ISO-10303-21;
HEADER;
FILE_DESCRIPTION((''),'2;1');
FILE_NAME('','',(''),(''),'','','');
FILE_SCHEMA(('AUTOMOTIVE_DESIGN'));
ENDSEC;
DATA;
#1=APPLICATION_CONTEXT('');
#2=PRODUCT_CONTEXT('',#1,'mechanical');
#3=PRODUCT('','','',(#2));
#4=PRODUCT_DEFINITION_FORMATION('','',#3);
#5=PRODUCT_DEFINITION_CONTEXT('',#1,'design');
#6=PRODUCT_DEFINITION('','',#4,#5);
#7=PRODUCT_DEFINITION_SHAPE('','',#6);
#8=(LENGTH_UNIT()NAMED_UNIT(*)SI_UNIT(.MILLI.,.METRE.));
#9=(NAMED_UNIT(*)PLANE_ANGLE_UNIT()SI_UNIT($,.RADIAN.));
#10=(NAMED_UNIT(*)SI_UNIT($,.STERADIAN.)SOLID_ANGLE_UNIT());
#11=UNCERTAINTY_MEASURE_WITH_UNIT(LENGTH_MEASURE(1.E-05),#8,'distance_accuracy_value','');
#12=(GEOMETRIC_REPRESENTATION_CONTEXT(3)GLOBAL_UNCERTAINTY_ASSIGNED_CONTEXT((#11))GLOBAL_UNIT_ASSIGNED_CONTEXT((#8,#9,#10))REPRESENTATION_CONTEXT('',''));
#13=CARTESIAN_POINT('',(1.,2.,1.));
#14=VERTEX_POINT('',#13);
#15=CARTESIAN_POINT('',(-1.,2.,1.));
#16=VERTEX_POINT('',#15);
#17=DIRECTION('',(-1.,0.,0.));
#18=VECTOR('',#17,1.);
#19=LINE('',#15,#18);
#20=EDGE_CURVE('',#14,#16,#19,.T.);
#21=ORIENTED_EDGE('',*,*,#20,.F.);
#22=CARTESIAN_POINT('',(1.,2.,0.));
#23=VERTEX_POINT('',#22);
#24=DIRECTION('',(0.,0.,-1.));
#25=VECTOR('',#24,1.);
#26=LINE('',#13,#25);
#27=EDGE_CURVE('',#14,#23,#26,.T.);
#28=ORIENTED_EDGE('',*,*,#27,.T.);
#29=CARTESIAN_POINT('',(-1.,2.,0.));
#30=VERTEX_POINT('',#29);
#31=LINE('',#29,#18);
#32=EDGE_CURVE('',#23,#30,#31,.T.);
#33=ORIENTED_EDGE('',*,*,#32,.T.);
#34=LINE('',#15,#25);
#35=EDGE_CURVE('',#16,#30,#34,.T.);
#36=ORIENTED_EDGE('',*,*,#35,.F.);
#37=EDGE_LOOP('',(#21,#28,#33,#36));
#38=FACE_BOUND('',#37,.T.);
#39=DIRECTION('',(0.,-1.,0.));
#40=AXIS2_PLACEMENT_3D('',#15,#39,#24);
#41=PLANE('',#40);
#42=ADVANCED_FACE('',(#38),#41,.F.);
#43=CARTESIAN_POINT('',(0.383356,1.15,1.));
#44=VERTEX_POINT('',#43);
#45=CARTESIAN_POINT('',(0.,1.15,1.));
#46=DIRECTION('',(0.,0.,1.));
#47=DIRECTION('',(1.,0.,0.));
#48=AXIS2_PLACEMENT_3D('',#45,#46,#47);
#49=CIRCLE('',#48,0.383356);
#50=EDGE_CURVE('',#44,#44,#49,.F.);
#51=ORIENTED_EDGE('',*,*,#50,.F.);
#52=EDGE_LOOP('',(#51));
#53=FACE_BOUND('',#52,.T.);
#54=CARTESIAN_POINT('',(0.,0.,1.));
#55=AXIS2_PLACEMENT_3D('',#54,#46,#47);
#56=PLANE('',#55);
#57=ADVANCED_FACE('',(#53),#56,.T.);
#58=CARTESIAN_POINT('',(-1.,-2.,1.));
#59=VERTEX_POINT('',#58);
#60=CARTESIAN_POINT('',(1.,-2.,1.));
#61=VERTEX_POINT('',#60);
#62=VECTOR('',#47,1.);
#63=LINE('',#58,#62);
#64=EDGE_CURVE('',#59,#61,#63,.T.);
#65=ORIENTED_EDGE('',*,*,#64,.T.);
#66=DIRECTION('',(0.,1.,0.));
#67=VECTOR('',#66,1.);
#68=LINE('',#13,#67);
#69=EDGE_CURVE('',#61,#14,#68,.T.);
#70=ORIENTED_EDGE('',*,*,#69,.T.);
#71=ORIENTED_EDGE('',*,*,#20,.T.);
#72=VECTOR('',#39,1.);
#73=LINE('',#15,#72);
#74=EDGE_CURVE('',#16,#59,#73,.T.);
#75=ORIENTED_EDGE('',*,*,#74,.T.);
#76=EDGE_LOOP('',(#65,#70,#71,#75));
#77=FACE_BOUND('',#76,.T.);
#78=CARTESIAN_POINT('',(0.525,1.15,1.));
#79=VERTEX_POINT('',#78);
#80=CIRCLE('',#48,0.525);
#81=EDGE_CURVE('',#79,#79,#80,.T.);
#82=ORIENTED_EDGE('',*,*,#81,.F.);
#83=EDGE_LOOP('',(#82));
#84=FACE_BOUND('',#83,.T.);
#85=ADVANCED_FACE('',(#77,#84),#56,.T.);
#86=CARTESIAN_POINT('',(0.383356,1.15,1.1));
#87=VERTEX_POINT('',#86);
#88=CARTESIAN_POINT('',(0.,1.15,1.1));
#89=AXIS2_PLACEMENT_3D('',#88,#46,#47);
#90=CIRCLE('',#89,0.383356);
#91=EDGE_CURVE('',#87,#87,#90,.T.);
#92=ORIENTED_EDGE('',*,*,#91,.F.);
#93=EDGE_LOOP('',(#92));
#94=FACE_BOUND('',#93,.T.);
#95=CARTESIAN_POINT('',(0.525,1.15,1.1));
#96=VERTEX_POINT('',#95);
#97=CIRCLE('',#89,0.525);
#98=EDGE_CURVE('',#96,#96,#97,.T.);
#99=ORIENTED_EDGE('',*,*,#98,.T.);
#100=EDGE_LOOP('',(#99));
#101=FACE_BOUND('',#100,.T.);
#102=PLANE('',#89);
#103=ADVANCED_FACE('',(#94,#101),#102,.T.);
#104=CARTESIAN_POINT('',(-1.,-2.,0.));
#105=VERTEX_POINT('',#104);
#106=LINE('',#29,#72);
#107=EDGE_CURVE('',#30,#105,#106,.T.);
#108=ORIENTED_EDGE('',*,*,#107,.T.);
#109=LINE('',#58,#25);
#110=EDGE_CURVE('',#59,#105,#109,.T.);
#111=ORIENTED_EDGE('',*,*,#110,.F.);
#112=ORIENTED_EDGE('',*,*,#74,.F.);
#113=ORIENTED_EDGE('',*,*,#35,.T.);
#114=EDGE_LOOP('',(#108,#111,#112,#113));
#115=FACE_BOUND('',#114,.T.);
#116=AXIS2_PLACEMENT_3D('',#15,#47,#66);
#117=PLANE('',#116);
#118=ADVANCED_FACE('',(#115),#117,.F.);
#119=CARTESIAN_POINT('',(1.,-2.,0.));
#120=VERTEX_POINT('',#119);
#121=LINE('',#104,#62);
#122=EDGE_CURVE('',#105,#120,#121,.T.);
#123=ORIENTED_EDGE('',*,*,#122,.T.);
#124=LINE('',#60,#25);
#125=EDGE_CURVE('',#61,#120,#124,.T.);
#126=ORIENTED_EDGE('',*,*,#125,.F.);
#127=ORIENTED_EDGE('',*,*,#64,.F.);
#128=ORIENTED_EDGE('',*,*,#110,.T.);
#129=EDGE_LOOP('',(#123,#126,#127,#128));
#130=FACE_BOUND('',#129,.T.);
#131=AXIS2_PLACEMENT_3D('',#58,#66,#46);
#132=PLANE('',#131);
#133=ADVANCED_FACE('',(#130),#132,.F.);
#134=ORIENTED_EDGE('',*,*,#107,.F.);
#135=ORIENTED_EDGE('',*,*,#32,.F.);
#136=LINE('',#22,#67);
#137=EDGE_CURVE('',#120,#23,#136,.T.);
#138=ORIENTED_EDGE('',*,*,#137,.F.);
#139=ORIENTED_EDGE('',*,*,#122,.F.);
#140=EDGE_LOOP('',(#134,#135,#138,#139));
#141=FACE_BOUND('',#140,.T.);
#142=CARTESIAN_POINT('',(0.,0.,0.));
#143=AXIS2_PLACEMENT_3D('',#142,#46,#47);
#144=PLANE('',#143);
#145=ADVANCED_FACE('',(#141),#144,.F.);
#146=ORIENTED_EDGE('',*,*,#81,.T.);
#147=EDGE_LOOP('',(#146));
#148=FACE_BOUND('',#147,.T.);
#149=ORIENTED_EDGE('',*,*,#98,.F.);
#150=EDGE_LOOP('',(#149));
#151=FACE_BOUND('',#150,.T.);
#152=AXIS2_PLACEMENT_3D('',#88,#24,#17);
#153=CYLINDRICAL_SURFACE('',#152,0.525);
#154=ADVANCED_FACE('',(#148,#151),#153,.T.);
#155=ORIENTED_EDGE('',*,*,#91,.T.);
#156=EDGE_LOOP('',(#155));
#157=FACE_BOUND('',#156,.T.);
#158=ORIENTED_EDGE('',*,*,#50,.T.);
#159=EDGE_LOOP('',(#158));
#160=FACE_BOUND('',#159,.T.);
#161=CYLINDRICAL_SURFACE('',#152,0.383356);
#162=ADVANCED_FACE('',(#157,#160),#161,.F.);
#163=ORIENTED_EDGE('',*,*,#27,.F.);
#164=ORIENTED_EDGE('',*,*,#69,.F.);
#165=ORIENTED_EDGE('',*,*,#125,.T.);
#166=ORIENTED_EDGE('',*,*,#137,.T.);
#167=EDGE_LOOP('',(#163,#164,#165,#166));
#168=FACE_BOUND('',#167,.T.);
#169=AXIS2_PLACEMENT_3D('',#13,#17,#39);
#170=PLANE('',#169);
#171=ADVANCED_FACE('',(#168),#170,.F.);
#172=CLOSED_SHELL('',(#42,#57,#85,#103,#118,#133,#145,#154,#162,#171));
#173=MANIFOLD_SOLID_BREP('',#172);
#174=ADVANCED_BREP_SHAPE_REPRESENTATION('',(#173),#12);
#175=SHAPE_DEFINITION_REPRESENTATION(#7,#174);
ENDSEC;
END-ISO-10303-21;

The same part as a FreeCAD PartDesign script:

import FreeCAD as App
import Part
import Sketcher

V = App.Vector
Q = App.Units.Quantity


def add_polygon(sketch, points):
    """Adds a closed chain of lines whose ends are joined by coincident constraints."""
    first, n = sketch.GeometryCount, len(points)
    for a, b in zip(points, points[1:] + points[:1]):
        sketch.addGeometry(Part.LineSegment(App.Vector(*a, 0), App.Vector(*b, 0)), False)
    for i in range(n):
        sketch.addConstraint(Sketcher.Constraint("Coincident", first + i, 2, first + (i + 1) % n, 1))

doc = App.newDocument("Part")
body = doc.addObject("PartDesign::Body", "Body")

sketch1 = body.newObject("Sketcher::SketchObject", "Sketch")
sketch1.AttachmentSupport = (doc.getObject("XY_Plane"), [""])
sketch1.MapMode = "FlatFace"
add_polygon(sketch1, [(-1, 2), (-1, -2), (1, -2), (1, 2)])
sketch1.addConstraint([
    Sketcher.Constraint("Vertical", 0),
    Sketcher.Constraint("Horizontal", 1),
    Sketcher.Constraint("Vertical", 2),
    Sketcher.Constraint("Horizontal", 3),
    Sketcher.Constraint("Symmetric", 0, 2, 2, 2, -1, 1),
    Sketcher.Constraint("DistanceX", 1, 1, 1, 2, Q("2 mm")),
    Sketcher.Constraint("DistanceY", 0, 2, 0, 1, Q("4 mm")),
])
pad1 = body.newObject("PartDesign::Pad", "Pad")
pad1.Profile = sketch1
pad1.Length = 1

sketch2 = body.newObject("Sketcher::SketchObject", "Sketch001")
sketch2.AttachmentSupport = (doc.getObject("XY_Plane"), [""])
sketch2.MapMode = "FlatFace"
sketch2.AttachmentOffset = App.Placement(V(0, 0, 1), App.Rotation())
sketch2.addGeometry([
    Part.Circle(V(0, 1.15, 0), V(0, 0, 1), 0.53),
    Part.Circle(V(0, 1.15, 0), V(0, 0, 1), 0.38),
], False)
sketch2.addConstraint([
    Sketcher.Constraint("Coincident", 1, 3, 0, 3),
    Sketcher.Constraint("PointOnObject", 0, 3, -2),
    Sketcher.Constraint("Diameter", 0, Q("1.05 mm")),
    Sketcher.Constraint("Diameter", 1, Q("0.766712 mm")),
    Sketcher.Constraint("DistanceY", -1, 1, 0, 3, Q("1.15 mm")),
])
pad2 = body.newObject("PartDesign::Pad", "Pad001")
pad2.Profile = sketch2
pad2.Length = 0.1

doc.recompute()
